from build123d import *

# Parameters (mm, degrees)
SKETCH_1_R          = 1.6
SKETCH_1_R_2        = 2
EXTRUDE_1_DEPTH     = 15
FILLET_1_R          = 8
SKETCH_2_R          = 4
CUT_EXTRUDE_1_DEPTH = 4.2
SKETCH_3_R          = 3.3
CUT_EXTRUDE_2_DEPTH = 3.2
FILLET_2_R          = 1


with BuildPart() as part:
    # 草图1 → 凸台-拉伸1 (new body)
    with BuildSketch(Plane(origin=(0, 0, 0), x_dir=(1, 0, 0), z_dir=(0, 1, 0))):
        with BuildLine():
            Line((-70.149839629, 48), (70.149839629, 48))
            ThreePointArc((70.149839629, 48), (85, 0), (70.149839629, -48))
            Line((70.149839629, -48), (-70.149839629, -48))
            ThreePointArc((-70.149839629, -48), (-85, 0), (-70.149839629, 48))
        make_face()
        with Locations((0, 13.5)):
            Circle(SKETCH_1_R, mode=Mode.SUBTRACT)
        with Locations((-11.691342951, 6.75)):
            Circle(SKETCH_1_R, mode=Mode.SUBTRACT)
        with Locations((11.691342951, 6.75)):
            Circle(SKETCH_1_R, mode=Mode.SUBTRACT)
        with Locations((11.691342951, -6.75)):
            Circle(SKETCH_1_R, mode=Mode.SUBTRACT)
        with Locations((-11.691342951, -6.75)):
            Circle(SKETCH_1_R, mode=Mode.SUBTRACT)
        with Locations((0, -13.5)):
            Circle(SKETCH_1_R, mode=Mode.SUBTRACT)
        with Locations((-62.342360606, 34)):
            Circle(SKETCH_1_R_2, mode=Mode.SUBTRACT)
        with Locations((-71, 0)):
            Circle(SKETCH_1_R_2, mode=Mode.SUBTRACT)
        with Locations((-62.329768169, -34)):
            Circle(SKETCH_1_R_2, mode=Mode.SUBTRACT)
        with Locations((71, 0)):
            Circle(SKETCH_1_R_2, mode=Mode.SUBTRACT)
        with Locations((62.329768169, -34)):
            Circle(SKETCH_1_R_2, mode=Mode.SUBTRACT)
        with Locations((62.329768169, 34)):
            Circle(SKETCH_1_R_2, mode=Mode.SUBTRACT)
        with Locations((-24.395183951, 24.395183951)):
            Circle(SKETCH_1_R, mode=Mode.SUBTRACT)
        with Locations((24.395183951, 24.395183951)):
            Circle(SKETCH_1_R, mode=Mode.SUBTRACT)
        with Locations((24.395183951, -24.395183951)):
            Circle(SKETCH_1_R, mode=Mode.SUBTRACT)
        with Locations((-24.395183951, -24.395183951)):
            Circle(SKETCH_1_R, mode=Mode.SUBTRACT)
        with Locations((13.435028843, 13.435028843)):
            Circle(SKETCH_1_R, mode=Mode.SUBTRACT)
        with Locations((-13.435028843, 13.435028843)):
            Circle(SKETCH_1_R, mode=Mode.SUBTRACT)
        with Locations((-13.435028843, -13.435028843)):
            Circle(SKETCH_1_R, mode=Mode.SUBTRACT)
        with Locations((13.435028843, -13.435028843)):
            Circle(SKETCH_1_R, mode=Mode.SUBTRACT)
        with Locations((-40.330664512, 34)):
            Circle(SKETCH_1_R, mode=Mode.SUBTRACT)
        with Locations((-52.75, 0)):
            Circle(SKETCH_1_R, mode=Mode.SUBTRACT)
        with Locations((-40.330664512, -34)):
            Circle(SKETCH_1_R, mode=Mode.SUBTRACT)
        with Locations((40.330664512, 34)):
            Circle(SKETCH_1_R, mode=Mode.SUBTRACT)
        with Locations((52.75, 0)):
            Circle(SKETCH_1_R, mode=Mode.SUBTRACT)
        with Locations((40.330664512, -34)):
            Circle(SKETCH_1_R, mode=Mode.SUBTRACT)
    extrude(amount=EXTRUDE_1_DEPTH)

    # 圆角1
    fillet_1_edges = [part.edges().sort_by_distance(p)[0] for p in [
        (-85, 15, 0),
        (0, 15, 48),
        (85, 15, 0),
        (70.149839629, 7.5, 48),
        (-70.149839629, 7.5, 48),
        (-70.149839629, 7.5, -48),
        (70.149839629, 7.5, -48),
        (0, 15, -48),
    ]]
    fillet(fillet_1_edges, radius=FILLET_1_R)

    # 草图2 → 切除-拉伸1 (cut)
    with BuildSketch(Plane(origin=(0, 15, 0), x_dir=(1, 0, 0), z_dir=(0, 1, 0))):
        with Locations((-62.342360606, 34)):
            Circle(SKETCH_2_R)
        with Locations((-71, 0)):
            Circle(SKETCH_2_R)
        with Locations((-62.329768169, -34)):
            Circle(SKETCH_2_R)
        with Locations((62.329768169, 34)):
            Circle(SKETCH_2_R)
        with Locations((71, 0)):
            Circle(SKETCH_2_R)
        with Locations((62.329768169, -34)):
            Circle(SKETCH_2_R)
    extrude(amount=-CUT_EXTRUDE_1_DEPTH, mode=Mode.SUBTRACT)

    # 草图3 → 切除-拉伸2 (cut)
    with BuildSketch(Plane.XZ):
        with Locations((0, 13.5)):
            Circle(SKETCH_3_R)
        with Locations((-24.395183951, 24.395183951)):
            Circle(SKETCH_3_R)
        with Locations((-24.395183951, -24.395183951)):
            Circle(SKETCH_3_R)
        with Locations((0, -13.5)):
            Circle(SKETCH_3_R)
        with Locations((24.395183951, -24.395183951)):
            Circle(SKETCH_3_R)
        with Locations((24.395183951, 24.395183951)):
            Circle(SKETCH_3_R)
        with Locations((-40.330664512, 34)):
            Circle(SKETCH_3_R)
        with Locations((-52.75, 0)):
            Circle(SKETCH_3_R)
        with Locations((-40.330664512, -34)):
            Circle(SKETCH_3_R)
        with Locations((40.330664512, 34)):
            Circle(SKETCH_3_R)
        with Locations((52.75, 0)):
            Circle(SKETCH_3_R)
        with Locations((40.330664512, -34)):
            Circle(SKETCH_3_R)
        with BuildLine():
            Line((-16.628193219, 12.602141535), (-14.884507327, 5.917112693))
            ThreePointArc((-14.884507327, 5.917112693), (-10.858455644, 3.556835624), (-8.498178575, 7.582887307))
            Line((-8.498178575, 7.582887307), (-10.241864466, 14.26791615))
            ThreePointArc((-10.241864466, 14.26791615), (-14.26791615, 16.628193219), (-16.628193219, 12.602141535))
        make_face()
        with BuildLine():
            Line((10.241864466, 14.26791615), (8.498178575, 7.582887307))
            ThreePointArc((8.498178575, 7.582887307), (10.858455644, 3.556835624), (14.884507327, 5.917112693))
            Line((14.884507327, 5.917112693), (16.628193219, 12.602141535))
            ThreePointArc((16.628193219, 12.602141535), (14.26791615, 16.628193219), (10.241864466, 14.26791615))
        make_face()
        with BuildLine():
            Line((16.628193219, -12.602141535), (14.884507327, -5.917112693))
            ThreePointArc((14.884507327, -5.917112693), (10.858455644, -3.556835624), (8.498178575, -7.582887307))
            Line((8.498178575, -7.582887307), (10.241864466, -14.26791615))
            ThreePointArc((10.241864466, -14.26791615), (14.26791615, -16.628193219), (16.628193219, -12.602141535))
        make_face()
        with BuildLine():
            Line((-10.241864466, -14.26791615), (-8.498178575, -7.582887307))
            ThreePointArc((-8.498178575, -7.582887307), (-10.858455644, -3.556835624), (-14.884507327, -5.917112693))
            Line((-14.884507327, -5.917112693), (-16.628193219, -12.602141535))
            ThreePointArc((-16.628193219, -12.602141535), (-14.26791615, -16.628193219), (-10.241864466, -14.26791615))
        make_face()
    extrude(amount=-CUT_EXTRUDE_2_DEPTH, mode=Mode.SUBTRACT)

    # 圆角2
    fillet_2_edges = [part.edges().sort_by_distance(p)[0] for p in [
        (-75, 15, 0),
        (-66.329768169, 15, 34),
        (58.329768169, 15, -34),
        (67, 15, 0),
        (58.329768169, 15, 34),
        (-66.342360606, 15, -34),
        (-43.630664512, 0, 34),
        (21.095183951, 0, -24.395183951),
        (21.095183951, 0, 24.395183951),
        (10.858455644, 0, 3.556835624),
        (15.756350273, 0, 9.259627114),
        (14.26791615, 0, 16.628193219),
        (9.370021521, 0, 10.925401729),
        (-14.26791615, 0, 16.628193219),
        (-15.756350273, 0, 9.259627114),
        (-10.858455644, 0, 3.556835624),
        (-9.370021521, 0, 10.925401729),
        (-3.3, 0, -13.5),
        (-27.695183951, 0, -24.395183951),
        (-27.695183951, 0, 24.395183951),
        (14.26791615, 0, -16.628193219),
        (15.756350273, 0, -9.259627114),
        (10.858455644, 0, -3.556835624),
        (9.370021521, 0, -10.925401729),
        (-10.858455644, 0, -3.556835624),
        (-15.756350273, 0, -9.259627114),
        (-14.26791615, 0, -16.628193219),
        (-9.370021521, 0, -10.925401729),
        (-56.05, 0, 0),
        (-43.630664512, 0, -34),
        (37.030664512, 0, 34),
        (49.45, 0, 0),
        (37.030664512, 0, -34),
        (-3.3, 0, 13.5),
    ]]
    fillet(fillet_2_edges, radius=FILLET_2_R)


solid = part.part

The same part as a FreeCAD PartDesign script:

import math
import FreeCAD as App
import Part
import Sketcher
from FreeCAD import Vector
Q = App.Units.Quantity


def edges_at(feature, points):
    """Names of the edges that pass closest to the given points."""
    edges = feature.Shape.Edges
    near = lambda p: min(range(len(edges)), key=lambda i: edges[i].distToShape(Part.Vertex(*p))[0])
    return sorted({f"Edge{near(p) + 1}" for p in points})

doc = App.newDocument("Part")
body = doc.addObject("PartDesign::Body", "Body")

# Sketch on XZ plane
sketch1 = body.newObject("Sketcher::SketchObject", "Sketch")
sketch1.AttachmentSupport = (doc.getObject("XZ_Plane"), [""])
sketch1.MapMode = "FlatFace"
sketch1.addGeometry([
    Part.LineSegment(Vector(70.1, -48, 0), Vector(-70.1, -48, 0)),  # 0
    Part.ArcOfCircle(Part.Circle(Vector(0, 0, 0), Vector(0, 0, 1), 85), math.radians(146), math.radians(214)),  # 1
    Part.LineSegment(Vector(-70.1, 48, 0), Vector(70.1, 48, 0)),  # 2
    Part.ArcOfCircle(Part.Circle(Vector(0, 0, 0), Vector(0, 0, 1), 85), math.radians(-34), math.radians(34)),  # 3
    Part.Circle(Vector(62.3, 34, 0), Vector(0, 0, 1), 2),  # 4
    Part.Circle(Vector(40.3, 34, 0), Vector(0, 0, 1), 1.6),  # 5
    Part.Circle(Vector(24.4, 24.4, 0), Vector(0, 0, 1), 1.6),  # 6
    Part.Circle(Vector(13.4, 13.4, 0), Vector(0, 0, 1), 1.6),  # 7
    Part.Circle(Vector(11.7, 6.8, 0), Vector(0, 0, 1), 1.6),  # 8
    Part.Circle(Vector(-24.4, 24.4, 0), Vector(0, 0, 1), 1.6),  # 9
    Part.Circle(Vector(-40.3, 34, 0), Vector(0, 0, 1), 1.6),  # 10
    Part.Circle(Vector(-62.3, 34, 0), Vector(0, 0, 1), 2),  # 11
    Part.Circle(Vector(0, 13.5, 0), Vector(0, 0, 1), 1.6),  # 12
    Part.Circle(Vector(-13.4, 13.4, 0), Vector(0, 0, 1), 1.6),  # 13
    Part.Circle(Vector(-11.7, 6.8, 0), Vector(0, 0, 1), 1.6),  # 14
    Part.Circle(Vector(71, 0, 0), Vector(0, 0, 1), 2),  # 15
    Part.Circle(Vector(52.8, 0, 0), Vector(0, 0, 1), 1.6),  # 16
    Part.Circle(Vector(11.7, -6.8, 0), Vector(0, 0, 1), 1.6),  # 17
    Part.Circle(Vector(13.4, -13.4, 0), Vector(0, 0, 1), 1.6),  # 18
    Part.Circle(Vector(62.3, -34, 0), Vector(0, 0, 1), 2),  # 19
    Part.Circle(Vector(40.3, -34, 0), Vector(0, 0, 1), 1.6),  # 20
    Part.Circle(Vector(24.4, -24.4, 0), Vector(0, 0, 1), 1.6),  # 21
    Part.Circle(Vector(-11.7, -6.8, 0), Vector(0, 0, 1), 1.6),  # 22
    Part.Circle(Vector(-13.4, -13.4, 0), Vector(0, 0, 1), 1.6),  # 23
    Part.Circle(Vector(0, -13.5, 0), Vector(0, 0, 1), 1.6),  # 24
    Part.Circle(Vector(-52.8, 0, 0), Vector(0, 0, 1), 1.6),  # 25
    Part.Circle(Vector(-71, 0, 0), Vector(0, 0, 1), 2),  # 26
    Part.Circle(Vector(-24.4, -24.4, 0), Vector(0, 0, 1), 1.6),  # 27
    Part.Circle(Vector(-40.3, -34, 0), Vector(0, 0, 1), 1.6),  # 28
    Part.Circle(Vector(-62.3, -34, 0), Vector(0, 0, 1), 2),  # 29
], False)
sketch1.addConstraint([
    Sketcher.Constraint("Coincident", 0, 2, 1, 2),
    Sketcher.Constraint("Coincident", 1, 1, 2, 1),
    Sketcher.Constraint("Coincident", 2, 2, 3, 2),
    Sketcher.Constraint("Coincident", 3, 1, 0, 1),
    Sketcher.Constraint("Horizontal", 0),
    Sketcher.Constraint("Horizontal", 2),
    Sketcher.Constraint("Coincident", 1, 3, -1, 1),
    Sketcher.Constraint("Coincident", 3, 3, -1, 1),
    Sketcher.Constraint("Equal", 1, 3),
    Sketcher.Constraint("Equal", 5, 6),
    Sketcher.Constraint("Equal", 6, 7),
    Sketcher.Constraint("Equal", 7, 8),
    Sketcher.Constraint("Equal", 8, 9),
    Sketcher.Constraint("Equal", 9, 10),
    Sketcher.Constraint("Equal", 4, 11),
    Sketcher.Constraint("Equal", 10, 12),
    Sketcher.Constraint("Equal", 12, 13),
    Sketcher.Constraint("Equal", 13, 14),
    Sketcher.Constraint("Equal", 11, 15),
    Sketcher.Constraint("Equal", 14, 16),
    Sketcher.Constraint("Equal", 16, 17),
    Sketcher.Constraint("Equal", 17, 18),
    Sketcher.Constraint("Equal", 15, 19),
    Sketcher.Constraint("Equal", 18, 20),
    Sketcher.Constraint("Equal", 20, 21),
    Sketcher.Constraint("Equal", 21, 22),
    Sketcher.Constraint("Equal", 22, 23),
    Sketcher.Constraint("Equal", 23, 24),
    Sketcher.Constraint("Equal", 24, 25),
    Sketcher.Constraint("Equal", 19, 26),
    Sketcher.Constraint("Equal", 25, 27),
    Sketcher.Constraint("Equal", 27, 28),
    Sketcher.Constraint("Equal", 26, 29),
    Sketcher.Constraint("Symmetric", 14, 3, 17, 3, -1, 1),
    Sketcher.Constraint("Symmetric", 13, 3, 18, 3, -1, 1),
    Sketcher.Constraint("Symmetric", 11, 3, 19, 3, -1, 1),
    Sketcher.Constraint("Symmetric", 10, 3, 20, 3, -1, 1),
    Sketcher.Constraint("Symmetric", 9, 3, 21, 3, -1, 1),
    Sketcher.Constraint("Symmetric", 8, 3, 22, 3, -1, 1),
    Sketcher.Constraint("Symmetric", 7, 3, 23, 3, -1, 1),
    Sketcher.Constraint("Symmetric", 12, 3, 24, 3, -1, 1),
    Sketcher.Constraint("Symmetric", 16, 3, 25, 3, -1, 1),
    Sketcher.Constraint("Symmetric", 15, 3, 26, 3, -1, 1),
    Sketcher.Constraint("Symmetric", 6, 3, 27, 3, -1, 1),
    Sketcher.Constraint("Symmetric", 5, 3, 28, 3, -1, 1),
    Sketcher.Constraint("Symmetric", 6, 3, 9, 3, -2),
    Sketcher.Constraint("Symmetric", 5, 3, 10, 3, -2),
    Sketcher.Constraint("Symmetric", 4, 3, 11, 3, -2),
    Sketcher.Constraint("Symmetric", 7, 3, 13, 3, -2),
    Sketcher.Constraint("Symmetric", 8, 3, 14, 3, -2),
    Sketcher.Constraint("PointOnObject", 12, 3, -2),
    Sketcher.Constraint("PointOnObject", 15, 3, -1),
    Sketcher.Constraint("PointOnObject", 16, 3, -1),
    Sketcher.Constraint("Horizontal", 4, 3, 5, 3),
    Sketcher.Constraint("Horizontal", 28, 3, 29, 3),
    Sketcher.Constraint("Vertical", 0, 2, 1, 1),
    Sketcher.Constraint("Diameter", 4, Q("4 mm")),
    Sketcher.Constraint("Radius", 1, Q("85 mm")),
    Sketcher.Constraint("Diameter", 5, Q("3.2 mm")),
    Sketcher.Constraint("DistanceY", -1, 1, 4, 3, Q("34 mm")),
    Sketcher.Constraint("DistanceX", -1, 1, 15, 3, Q("71 mm")),
    Sketcher.Constraint("DistanceY", 0, 2, -1, 1, Q("48 mm")),
    Sketcher.Constraint("DistanceY", -1, 1, 12, 3, Q("13.5 mm")),
    Sketcher.Constraint("DistanceY", 17, 3, 8, 3, Q("13.5 mm")),
    Sketcher.Constraint("DistanceX", -1, 1, 16, 3, Q("52.75 mm")),
    Sketcher.Constraint("DistanceX", -1, 1, 4, 3, Q("62.329768 mm")),
    Sketcher.Constraint("DistanceX", -1, 1, 7, 3, Q("13.435029 mm")),
    Sketcher.Constraint("DistanceY", -1, 1, 7, 3, Q("13.435029 mm")),
    Sketcher.Constraint("DistanceX", 29, 3, -1, 1, Q("62.342361 mm")),
    Sketcher.Constraint("DistanceX", 6, 3, 5, 3, Q("15.935481 mm")),
    Sketcher.Constraint("DistanceX", 8, 3, 6, 3, Q("12.703841 mm")),
    Sketcher.Constraint("DistanceX", 13, 3, 8, 3, Q("25.126372 mm")),
    Sketcher.Constraint("DistanceY", -1, 1, 6, 3, Q("24.395184 mm")),
])
pad1 = body.newObject("PartDesign::Pad", "Pad")
pad1.Profile = sketch1
pad1.Length = 15
pad1.Reversed = True
doc.recompute()

fillet = body.newObject("PartDesign::Fillet", "Fillet")
fillet.Base = (pad1, edges_at(pad1, [
    (-85, 15, 0),
    (0, 15, 48),
    (85, 15, 0),
    (70.15, 7.5, 48),
    (-70.15, 7.5, 48),
    (-70.15, 7.5, -48),
    (70.15, 7.5, -48),
    (0, 15, -48),
]))
fillet.Radius = 8

# Sketch on XZ plane
sketch2 = body.newObject("Sketcher::SketchObject", "Sketch001")
sketch2.AttachmentSupport = (doc.getObject("XZ_Plane"), [""])
sketch2.MapMode = "FlatFace"
sketch2.AttachmentOffset = App.Placement(Vector(0, 0, -15), App.Rotation())
sketch2.addGeometry([
    Part.Circle(Vector(-62.3, -34, 0), Vector(0, 0, 1), 4),  # 0
    Part.Circle(Vector(-71, 0, 0), Vector(0, 0, 1), 4),  # 1
    Part.Circle(Vector(-62.3, 34, 0), Vector(0, 0, 1), 4),  # 2
    Part.Circle(Vector(62.3, -34, 0), Vector(0, 0, 1), 4),  # 3
    Part.Circle(Vector(71, 0, 0), Vector(0, 0, 1), 4),  # 4
    Part.Circle(Vector(62.3, 34, 0), Vector(0, 0, 1), 4),  # 5
], False)
sketch2.addConstraint([
    Sketcher.Constraint("Equal", 0, 1),
    Sketcher.Constraint("Equal", 1, 2),
    Sketcher.Constraint("Equal", 2, 3),
    Sketcher.Constraint("Equal", 3, 4),
    Sketcher.Constraint("Equal", 4, 5),
    Sketcher.Constraint("Symmetric", 2, 3, 3, 3, -1, 1),
    Sketcher.Constraint("Symmetric", 1, 3, 4, 3, -1, 1),
    Sketcher.Constraint("Symmetric", 2, 3, 5, 3, -2),
    Sketcher.Constraint("PointOnObject", 1, 3, -1),
    Sketcher.Constraint("Horizontal", 0, 3, 3, 3),
    Sketcher.Constraint("Diameter", 0, Q("8 mm")),
    Sketcher.Constraint("DistanceY", 0, 3, -1, 1, Q("34 mm")),
    Sketcher.Constraint("DistanceX", 1, 3, -1, 1, Q("71 mm")),
    Sketcher.Constraint("DistanceX", 0, 3, -1, 1, Q("62.342361 mm")),
    Sketcher.Constraint("DistanceX", 2, 3, -1, 1, Q("62.329768 mm")),
])
pocket1 = body.newObject("PartDesign::Pocket", "Pocket")
pocket1.Profile = sketch2
pocket1.Length = 4.2
pocket1.Reversed = True

# Sketch on XZ plane
sketch3 = body.newObject("Sketcher::SketchObject", "Sketch002")
sketch3.AttachmentSupport = (doc.getObject("XZ_Plane"), [""])
sketch3.MapMode = "FlatFace"
sketch3.addGeometry([
    Part.Circle(Vector(0, 13.5, 0), Vector(0, 0, 1), 3.3),  # 0
    Part.Circle(Vector(-24.4, 24.4, 0), Vector(0, 0, 1), 3.3),  # 1
    Part.Circle(Vector(-24.4, -24.4, 0), Vector(0, 0, 1), 3.3),  # 2
    Part.Circle(Vector(0, -13.5, 0), Vector(0, 0, 1), 3.3),  # 3
    Part.Circle(Vector(24.4, -24.4, 0), Vector(0, 0, 1), 3.3),  # 4
    Part.Circle(Vector(24.4, 24.4, 0), Vector(0, 0, 1), 3.3),  # 5
    Part.Circle(Vector(-40.3, 34, 0), Vector(0, 0, 1), 3.3),  # 6
    Part.Circle(Vector(-52.8, 0, 0), Vector(0, 0, 1), 3.3),  # 7
    Part.Circle(Vector(-40.3, -34, 0), Vector(0, 0, 1), 3.3),  # 8
    Part.Circle(Vector(40.3, 34, 0), Vector(0, 0, 1), 3.3),  # 9
    Part.Circle(Vector(52.8, 0, 0), Vector(0, 0, 1), 3.3),  # 10
    Part.Circle(Vector(40.3, -34, 0), Vector(0, 0, 1), 3.3),  # 11
    Part.LineSegment(Vector(-16.6, 12.6, 0), Vector(-14.9, 5.9, 0)),  # 12
    Part.ArcOfCircle(Part.Circle(Vector(-11.7, 6.8, 0), Vector(0, 0, 1), 3.3), math.radians(-165), math.radians(15)),  # 13
    Part.LineSegment(Vector(-8.5, 7.6, 0), Vector(-10.2, 14.3, 0)),  # 14
    Part.ArcOfCircle(Part.Circle(Vector(-13.4, 13.4, 0), Vector(0, 0, 1), 3.3), math.radians(15), math.radians(195)),  # 15
    Part.LineSegment(Vector(10.2, 14.3, 0), Vector(8.5, 7.6, 0)),  # 16
    Part.ArcOfCircle(Part.Circle(Vector(11.7, 6.8, 0), Vector(0, 0, 1), 3.3), math.radians(165), math.radians(345)),  # 17
    Part.LineSegment(Vector(14.9, 5.9, 0), Vector(16.6, 12.6, 0)),  # 18
    Part.ArcOfCircle(Part.Circle(Vector(13.4, 13.4, 0), Vector(0, 0, 1), 3.3), math.radians(-15), math.radians(165)),  # 19
    Part.LineSegment(Vector(16.6, -12.6, 0), Vector(14.9, -5.9, 0)),  # 20
    Part.ArcOfCircle(Part.Circle(Vector(11.7, -6.8, 0), Vector(0, 0, 1), 3.3), math.radians(15), math.radians(195)),  # 21
    Part.LineSegment(Vector(8.5, -7.6, 0), Vector(10.2, -14.3, 0)),  # 22
    Part.ArcOfCircle(Part.Circle(Vector(13.4, -13.4, 0), Vector(0, 0, 1), 3.3), math.radians(-165), math.radians(15)),  # 23
    Part.LineSegment(Vector(-10.2, -14.3, 0), Vector(-8.5, -7.6, 0)),  # 24
    Part.ArcOfCircle(Part.Circle(Vector(-11.7, -6.8, 0), Vector(0, 0, 1), 3.3), math.radians(-15), math.radians(165)),  # 25
    Part.LineSegment(Vector(-14.9, -5.9, 0), Vector(-16.6, -12.6, 0)),  # 26
    Part.ArcOfCircle(Part.Circle(Vector(-13.4, -13.4, 0), Vector(0, 0, 1), 3.3), math.radians(165), math.radians(345)),  # 27
], False)
sketch3.addConstraint([
    Sketcher.Constraint("Tangent", 12, 2, 13, 1),
    Sketcher.Constraint("Tangent", 13, 2, 14, 1),
    Sketcher.Constraint("Tangent", 14, 2, 15, 1),
    Sketcher.Constraint("Tangent", 15, 2, 12, 1),
    Sketcher.Constraint("Tangent", 16, 2, 17, 1),
    Sketcher.Constraint("Tangent", 17, 2, 18, 1),
    Sketcher.Constraint("Tangent", 18, 2, 19, 1),
    Sketcher.Constraint("Tangent", 19, 2, 16, 1),
    Sketcher.Constraint("Tangent", 20, 2, 21, 1),
    Sketcher.Constraint("Tangent", 21, 2, 22, 1),
    Sketcher.Constraint("Tangent", 22, 2, 23, 1),
    Sketcher.Constraint("Tangent", 23, 2, 20, 1),
    Sketcher.Constraint("Tangent", 24, 2, 25, 1),
    Sketcher.Constraint("Tangent", 25, 2, 26, 1),
    Sketcher.Constraint("Tangent", 26, 2, 27, 1),
    Sketcher.Constraint("Tangent", 27, 2, 24, 1),
    Sketcher.Constraint("Equal", 0, 1),
    Sketcher.Constraint("Equal", 1, 2),
    Sketcher.Constraint("Equal", 2, 3),
    Sketcher.Constraint("Equal", 3, 4),
    Sketcher.Constraint("Equal", 4, 5),
    Sketcher.Constraint("Equal", 5, 6),
    Sketcher.Constraint("Equal", 6, 7),
    Sketcher.Constraint("Equal", 7, 8),
    Sketcher.Constraint("Equal", 8, 9),
    Sketcher.Constraint("Equal", 9, 10),
    Sketcher.Constraint("Equal", 10, 11),
    Sketcher.Constraint("Equal", 11, 13),
    Sketcher.Constraint("Equal", 13, 15),
    Sketcher.Constraint("Equal", 15, 17),
    Sketcher.Constraint("Equal", 17, 19),
    Sketcher.Constraint("Equal", 19, 21),
    Sketcher.Constraint("Equal", 21, 23),
    Sketcher.Constraint("Equal", 23, 25),
    Sketcher.Constraint("Equal", 25, 27),
    Sketcher.Constraint("Symmetric", 0, 3, 3, 3, -1, 1),
    Sketcher.Constraint("Symmetric", 1, 3, 4, 3, -1, 1),
    Sketcher.Constraint("Symmetric", 2, 3, 5, 3, -1, 1),
    Sketcher.Constraint("Symmetric", 8, 3, 9, 3, -1, 1),
    Sketcher.Constraint("Symmetric", 7, 3, 10, 3, -1, 1),
    Sketcher.Constraint("Symmetric", 6, 3, 11, 3, -1, 1),
    Sketcher.Constraint("Symmetric", 13, 3, 21, 3, -1, 1),
    Sketcher.Constraint("Symmetric", 15, 3, 23, 3, -1, 1),
    Sketcher.Constraint("Symmetric", 17, 3, 25, 3, -1, 1),
    Sketcher.Constraint("Symmetric", 19, 3, 27, 3, -1, 1),
    Sketcher.Constraint("Symmetric", 2, 3, 4, 3, -2),
    Sketcher.Constraint("Symmetric", 6, 3, 9, 3, -2),
    Sketcher.Constraint("Symmetric", 13, 3, 17, 3, -2),
    Sketcher.Constraint("Symmetric", 15, 3, 19, 3, -2),
    Sketcher.Constraint("PointOnObject", 0, 3, -2),
    Sketcher.Constraint("PointOnObject", 7, 3, -1),
    Sketcher.Constraint("Diameter", 0, Q("6.6 mm")),
    Sketcher.Constraint("DistanceY", -1, 1, 6, 3, Q("34 mm")),
    Sketcher.Constraint("DistanceY", 3, 3, 0, 3, Q("27 mm")),
    Sketcher.Constraint("DistanceY", 21, 3, 17, 3, Q("13.5 mm")),
    Sketcher.Constraint("DistanceX", 7, 3, -1, 1, Q("52.75 mm")),
    Sketcher.Constraint("DistanceX", 15, 3, -1, 1, Q("13.435029 mm")),
    Sketcher.Constraint("DistanceY", -1, 1, 15, 3, Q("13.435029 mm")),
    Sketcher.Constraint("DistanceX", 13, 2, -1, 1, Q("8.498179 mm")),
    Sketcher.Constraint("DistanceX", 6, 3, 1, 3, Q("15.935481 mm")),
    Sketcher.Constraint("DistanceX", 6, 3, 5, 3, Q("64.725848 mm")),
    Sketcher.Constraint("DistanceY", -1, 1, 1, 3, Q("24.395184 mm")),
])
pocket2 = body.newObject("PartDesign::Pocket", "Pocket001")
pocket2.Profile = sketch3
pocket2.Length = 3.2
doc.recompute()

fillet2 = body.newObject("PartDesign::Fillet", "Fillet001")
fillet2.Base = (pocket2, edges_at(pocket2, [
    (-75, 15, 0),
    (-66.33, 15, 34),
    (58.33, 15, -34),
    (67, 15, 0),
    (58.33, 15, 34),
    (-66.342, 15, -34),
    (-43.631, 0, 34),
    (21.095, 0, -24.395),
    (21.095, 0, 24.395),
    (10.858, 0, 3.557),
    (15.756, 0, 9.26),
    (14.268, 0, 16.628),
    (9.37, 0, 10.925),
    (-14.268, 0, 16.628),
    (-15.756, 0, 9.26),
    (-10.858, 0, 3.557),
    (-9.37, 0, 10.925),
    (-3.3, 0, -13.5),
    (-27.695, 0, -24.395),
    (-27.695, 0, 24.395),
    (14.268, 0, -16.628),
    (15.756, 0, -9.26),
    (10.858, 0, -3.557),
    (9.37, 0, -10.925),
    (-10.858, 0, -3.557),
    (-15.756, 0, -9.26),
    (-14.268, 0, -16.628),
    (-9.37, 0, -10.925),
    (-56.05, 0, 0),
    (-43.631, 0, -34),
    (37.031, 0, 34),
    (49.45, 0, 0),
    (37.031, 0, -34),
    (-3.3, 0, 13.5),
]))
fillet2.Radius = 1

doc.recompute()
